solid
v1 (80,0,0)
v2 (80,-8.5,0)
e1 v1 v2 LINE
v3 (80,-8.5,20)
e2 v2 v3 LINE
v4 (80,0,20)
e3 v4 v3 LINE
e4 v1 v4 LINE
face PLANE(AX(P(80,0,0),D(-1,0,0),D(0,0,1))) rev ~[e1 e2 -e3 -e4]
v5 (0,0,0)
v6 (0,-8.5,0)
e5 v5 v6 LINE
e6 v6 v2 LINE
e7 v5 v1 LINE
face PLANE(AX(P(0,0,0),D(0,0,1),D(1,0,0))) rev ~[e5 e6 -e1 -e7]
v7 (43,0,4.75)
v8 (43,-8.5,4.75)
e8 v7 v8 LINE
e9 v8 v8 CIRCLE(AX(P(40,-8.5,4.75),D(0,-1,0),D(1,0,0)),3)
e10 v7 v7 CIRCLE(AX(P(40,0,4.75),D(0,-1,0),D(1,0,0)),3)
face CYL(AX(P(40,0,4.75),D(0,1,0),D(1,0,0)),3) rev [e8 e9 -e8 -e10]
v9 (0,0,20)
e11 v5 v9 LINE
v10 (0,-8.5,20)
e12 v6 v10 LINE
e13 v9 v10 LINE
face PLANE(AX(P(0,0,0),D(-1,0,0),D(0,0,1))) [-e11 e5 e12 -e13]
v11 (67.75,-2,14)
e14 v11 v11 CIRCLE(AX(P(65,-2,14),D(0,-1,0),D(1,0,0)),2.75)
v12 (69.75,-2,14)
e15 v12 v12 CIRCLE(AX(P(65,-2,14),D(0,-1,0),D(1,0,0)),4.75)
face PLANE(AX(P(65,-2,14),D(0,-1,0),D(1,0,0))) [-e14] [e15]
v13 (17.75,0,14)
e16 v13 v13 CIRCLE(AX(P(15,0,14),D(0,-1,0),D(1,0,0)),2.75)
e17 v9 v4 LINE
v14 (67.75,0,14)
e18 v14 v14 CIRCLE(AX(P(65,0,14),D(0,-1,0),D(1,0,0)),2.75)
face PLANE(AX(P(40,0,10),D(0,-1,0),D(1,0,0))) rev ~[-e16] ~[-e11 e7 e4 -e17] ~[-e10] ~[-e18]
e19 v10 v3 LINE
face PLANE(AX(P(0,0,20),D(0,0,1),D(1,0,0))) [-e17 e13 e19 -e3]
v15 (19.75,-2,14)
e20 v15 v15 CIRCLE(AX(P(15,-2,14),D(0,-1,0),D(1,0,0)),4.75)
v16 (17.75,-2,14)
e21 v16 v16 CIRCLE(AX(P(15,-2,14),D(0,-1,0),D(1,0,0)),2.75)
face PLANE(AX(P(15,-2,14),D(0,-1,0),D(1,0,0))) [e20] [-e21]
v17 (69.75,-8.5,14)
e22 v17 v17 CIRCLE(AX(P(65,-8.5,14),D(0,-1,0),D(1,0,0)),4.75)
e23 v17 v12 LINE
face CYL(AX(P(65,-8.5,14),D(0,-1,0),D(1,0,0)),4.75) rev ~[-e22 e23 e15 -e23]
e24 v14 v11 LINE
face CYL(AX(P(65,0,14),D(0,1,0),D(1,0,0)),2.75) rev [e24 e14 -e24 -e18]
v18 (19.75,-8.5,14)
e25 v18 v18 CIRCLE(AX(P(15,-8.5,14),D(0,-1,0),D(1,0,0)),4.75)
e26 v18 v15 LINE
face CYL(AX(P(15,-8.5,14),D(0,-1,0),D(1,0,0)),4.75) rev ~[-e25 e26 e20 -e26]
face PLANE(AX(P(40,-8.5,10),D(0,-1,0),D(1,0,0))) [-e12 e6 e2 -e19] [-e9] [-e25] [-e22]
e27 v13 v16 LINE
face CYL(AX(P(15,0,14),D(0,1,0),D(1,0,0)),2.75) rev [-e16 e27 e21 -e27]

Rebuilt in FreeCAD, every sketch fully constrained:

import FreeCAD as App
import Part
import Sketcher


def add_polygon(sketch, points):
    """Adds a closed chain of lines whose ends are joined by coincident constraints."""
    first, n = sketch.GeometryCount, len(points)
    for a, b in zip(points, points[1:] + points[:1]):
        sketch.addGeometry(Part.LineSegment(App.Vector(*a, 0), App.Vector(*b, 0)), False)
    for i in range(n):
        sketch.addConstraint(Sketcher.Constraint("Coincident", first + i, 2, first + (i + 1) % n, 1))

doc = App.newDocument("Part")
body = doc.addObject("PartDesign::Body", "Body")

sketch1 = body.newObject("Sketcher::SketchObject", "Sketch")
sketch1.AttachmentSupport = (doc.getObject("XZ_Plane"), [""])
sketch1.MapMode = "FlatFace"
add_polygon(sketch1, [(0, 20), (0, 0), (80, 0), (80, 20)])
sketch1.addGeometry(Part.Circle(App.Vector(40, 4.8, 0), App.Vector(0, 0, 1), 3), False)
sketch1.addGeometry(Part.Circle(App.Vector(15, 14, 0), App.Vector(0, 0, 1), 2.8), False)
sketch1.addGeometry(Part.Circle(App.Vector(65, 14, 0), App.Vector(0, 0, 1), 2.8), False)
sketch1.addConstraint(Sketcher.Constraint("Vertical", 0))
sketch1.addConstraint(Sketcher.Constraint("Horizontal", 1))
sketch1.addConstraint(Sketcher.Constraint("Vertical", 2))
sketch1.addConstraint(Sketcher.Constraint("Horizontal", 3))
sketch1.addConstraint(Sketcher.Constraint("Coincident", 0, 2, -1, 1))
sketch1.addConstraint(Sketcher.Constraint("Equal", 5, 6))
sketch1.addConstraint(Sketcher.Constraint("Horizontal", 5, 3, 6, 3))
sketch1.addConstraint(Sketcher.Constraint("Diameter", 4, 6.0))
sketch1.addConstraint(Sketcher.Constraint("Diameter", 5, 5.5))
sketch1.addConstraint(Sketcher.Constraint("DistanceX", 1, 1, 1, 2, 80.0))
sketch1.addConstraint(Sketcher.Constraint("DistanceY", 0, 2, 0, 1, 20.0))
sketch1.addConstraint(Sketcher.Constraint("DistanceX", -1, 1, 4, 3, 40.0))
sketch1.addConstraint(Sketcher.Constraint("DistanceX", -1, 1, 5, 3, 15.0))
sketch1.addConstraint(Sketcher.Constraint("DistanceY", -1, 1, 5, 3, 14.0))
sketch1.addConstraint(Sketcher.Constraint("DistanceX", -1, 1, 6, 3, 65.0))
sketch1.addConstraint(Sketcher.Constraint("DistanceY", -1, 1, 4, 3, 4.75))
pad1 = body.newObject("PartDesign::Pad", "Pad")
pad1.Profile = sketch1
pad1.Length = 8.5

sketch2 = body.newObject("Sketcher::SketchObject", "Sketch001")
sketch2.AttachmentSupport = (doc.getObject("XZ_Plane"), [""])
sketch2.MapMode = "FlatFace"
sketch2.AttachmentOffset = App.Placement(App.Vector(0, 0, 8.5), App.Rotation())
sketch2.addGeometry(Part.Circle(App.Vector(15, 14, 0), App.Vector(0, 0, 1), 4.8), False)
sketch2.addGeometry(Part.Circle(App.Vector(15, 14, 0), App.Vector(0, 0, 1), 2.8), False)
sketch2.addGeometry(Part.Circle(App.Vector(65, 14, 0), App.Vector(0, 0, 1), 4.8), False)
sketch2.addGeometry(Part.Circle(App.Vector(65, 14, 0), App.Vector(0, 0, 1), 2.8), False)
sketch2.addConstraint(Sketcher.Constraint("Coincident", 1, 3, 0, 3))
sketch2.addConstraint(Sketcher.Constraint("Coincident", 3, 3, 2, 3))
sketch2.addConstraint(Sketcher.Constraint("Equal", 0, 2))
sketch2.addConstraint(Sketcher.Constraint("Equal", 1, 3))
sketch2.addConstraint(Sketcher.Constraint("Horizontal", 1, 3, 2, 3))
sketch2.addConstraint(Sketcher.Constraint("Diameter", 0, 9.5))
sketch2.addConstraint(Sketcher.Constraint("Diameter", 1, 5.5))
sketch2.addConstraint(Sketcher.Constraint("DistanceX", -1, 1, 0, 3, 15.0))
sketch2.addConstraint(Sketcher.Constraint("DistanceY", -1, 1, 0, 3, 14.0))
sketch2.addConstraint(Sketcher.Constraint("DistanceX", -1, 1, 2, 3, 65.0))
pocket1 = body.newObject("PartDesign::Pocket", "Pocket")
pocket1.Profile = sketch2
pocket1.Length = 6.5

doc.recompute()
